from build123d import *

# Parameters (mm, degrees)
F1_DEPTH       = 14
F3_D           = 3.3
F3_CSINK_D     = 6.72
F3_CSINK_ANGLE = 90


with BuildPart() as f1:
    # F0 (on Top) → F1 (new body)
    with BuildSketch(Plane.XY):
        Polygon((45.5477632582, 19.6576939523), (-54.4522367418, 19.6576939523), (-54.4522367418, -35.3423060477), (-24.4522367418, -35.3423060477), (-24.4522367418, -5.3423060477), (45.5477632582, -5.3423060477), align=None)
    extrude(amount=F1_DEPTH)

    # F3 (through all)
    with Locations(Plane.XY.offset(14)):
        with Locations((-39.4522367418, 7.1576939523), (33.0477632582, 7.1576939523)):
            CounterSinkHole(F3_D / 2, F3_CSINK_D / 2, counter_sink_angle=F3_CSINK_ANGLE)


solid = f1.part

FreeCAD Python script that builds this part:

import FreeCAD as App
import Part
import Sketcher

V = App.Vector


def add_polygon(sketch, points):
    """Adds a closed chain of lines whose ends are joined by coincident constraints."""
    first, n = sketch.GeometryCount, len(points)
    for a, b in zip(points, points[1:] + points[:1]):
        sketch.addGeometry(Part.LineSegment(App.Vector(*a, 0), App.Vector(*b, 0)), False)
    for i in range(n):
        sketch.addConstraint(Sketcher.Constraint("Coincident", first + i, 2, first + (i + 1) % n, 1))

doc = App.newDocument("Part")
body = doc.addObject("PartDesign::Body", "Body")

# Sketch on XY plane
sketch1 = body.newObject("Sketcher::SketchObject", "Sketch")
sketch1.AttachmentSupport = (doc.getObject("XY_Plane"), [""])
sketch1.MapMode = "FlatFace"
add_polygon(sketch1, [(45.547763, 19.657694), (-54.452237, 19.657694), (-54.452237, -35.342306), (-24.452237, -35.342306), (-24.452237, -5.342306), (45.547763, -5.342306)])  # lines 0-5
sketch1.addConstraint(Sketcher.Constraint("Horizontal", 0))
sketch1.addConstraint(Sketcher.Constraint("Vertical", 1))
sketch1.addConstraint(Sketcher.Constraint("Horizontal", 2))
sketch1.addConstraint(Sketcher.Constraint("Vertical", 3))
sketch1.addConstraint(Sketcher.Constraint("Horizontal", 4))
sketch1.addConstraint(Sketcher.Constraint("Vertical", 5))
sketch1.addConstraint(Sketcher.Constraint("Equal", 2, 3))
sketch1.addConstraint(Sketcher.Constraint("DistanceX", 0, 2, 0, 1, 100.0))
sketch1.addConstraint(Sketcher.Constraint("DistanceX", 2, 1, 2, 2, 30.0))
sketch1.addConstraint(Sketcher.Constraint("DistanceY", 1, 2, 1, 1, 55.0))
sketch1.addConstraint(Sketcher.Constraint("DistanceX", 0, 2, -1, 1, 54.452237))
sketch1.addConstraint(Sketcher.Constraint("DistanceY", -1, 1, 0, 2, 19.657694))
pad1 = body.newObject("PartDesign::Pad", "Pad")
pad1.Profile = sketch1
pad1.Length = 14

# Sketch on XY plane
sketch2 = body.newObject("Sketcher::SketchObject", "Sketch001")
sketch2.AttachmentSupport = (doc.getObject("XY_Plane"), [""])
sketch2.MapMode = "FlatFace"
sketch2.AttachmentOffset = App.Placement(V(0, 0, 14), App.Rotation())
sketch2.addGeometry(Part.Circle(V(-39.452237, 7.157694, 0), V(0, 0, 1), 1.65), False)
sketch2.addGeometry(Part.Circle(V(33.047763, 7.157694, 0), V(0, 0, 1), 1.65), False)
sketch2.addConstraint(Sketcher.Constraint("Equal", 0, 1))
sketch2.addConstraint(Sketcher.Constraint("Horizontal", 0, 3, 1, 3))
sketch2.addConstraint(Sketcher.Constraint("Diameter", 0, 3.3))
sketch2.addConstraint(Sketcher.Constraint("DistanceX", 0, 3, 1, 3, 72.5))
sketch2.addConstraint(Sketcher.Constraint("DistanceX", 0, 3, -1, 1, 39.452237))
sketch2.addConstraint(Sketcher.Constraint("DistanceY", -1, 1, 0, 3, 7.157694))
doc.recompute()
hole = body.newObject("PartDesign::Hole", "Hole")
hole.Profile = sketch2
hole.ThreadType = "None"
hole.Diameter = 3.3
hole.DepthType = "ThroughAll"
hole.HoleCutType = "Countersink"
hole.HoleCutDiameter = 6.72
hole.HoleCutCountersinkAngle = 90

doc.recompute()
